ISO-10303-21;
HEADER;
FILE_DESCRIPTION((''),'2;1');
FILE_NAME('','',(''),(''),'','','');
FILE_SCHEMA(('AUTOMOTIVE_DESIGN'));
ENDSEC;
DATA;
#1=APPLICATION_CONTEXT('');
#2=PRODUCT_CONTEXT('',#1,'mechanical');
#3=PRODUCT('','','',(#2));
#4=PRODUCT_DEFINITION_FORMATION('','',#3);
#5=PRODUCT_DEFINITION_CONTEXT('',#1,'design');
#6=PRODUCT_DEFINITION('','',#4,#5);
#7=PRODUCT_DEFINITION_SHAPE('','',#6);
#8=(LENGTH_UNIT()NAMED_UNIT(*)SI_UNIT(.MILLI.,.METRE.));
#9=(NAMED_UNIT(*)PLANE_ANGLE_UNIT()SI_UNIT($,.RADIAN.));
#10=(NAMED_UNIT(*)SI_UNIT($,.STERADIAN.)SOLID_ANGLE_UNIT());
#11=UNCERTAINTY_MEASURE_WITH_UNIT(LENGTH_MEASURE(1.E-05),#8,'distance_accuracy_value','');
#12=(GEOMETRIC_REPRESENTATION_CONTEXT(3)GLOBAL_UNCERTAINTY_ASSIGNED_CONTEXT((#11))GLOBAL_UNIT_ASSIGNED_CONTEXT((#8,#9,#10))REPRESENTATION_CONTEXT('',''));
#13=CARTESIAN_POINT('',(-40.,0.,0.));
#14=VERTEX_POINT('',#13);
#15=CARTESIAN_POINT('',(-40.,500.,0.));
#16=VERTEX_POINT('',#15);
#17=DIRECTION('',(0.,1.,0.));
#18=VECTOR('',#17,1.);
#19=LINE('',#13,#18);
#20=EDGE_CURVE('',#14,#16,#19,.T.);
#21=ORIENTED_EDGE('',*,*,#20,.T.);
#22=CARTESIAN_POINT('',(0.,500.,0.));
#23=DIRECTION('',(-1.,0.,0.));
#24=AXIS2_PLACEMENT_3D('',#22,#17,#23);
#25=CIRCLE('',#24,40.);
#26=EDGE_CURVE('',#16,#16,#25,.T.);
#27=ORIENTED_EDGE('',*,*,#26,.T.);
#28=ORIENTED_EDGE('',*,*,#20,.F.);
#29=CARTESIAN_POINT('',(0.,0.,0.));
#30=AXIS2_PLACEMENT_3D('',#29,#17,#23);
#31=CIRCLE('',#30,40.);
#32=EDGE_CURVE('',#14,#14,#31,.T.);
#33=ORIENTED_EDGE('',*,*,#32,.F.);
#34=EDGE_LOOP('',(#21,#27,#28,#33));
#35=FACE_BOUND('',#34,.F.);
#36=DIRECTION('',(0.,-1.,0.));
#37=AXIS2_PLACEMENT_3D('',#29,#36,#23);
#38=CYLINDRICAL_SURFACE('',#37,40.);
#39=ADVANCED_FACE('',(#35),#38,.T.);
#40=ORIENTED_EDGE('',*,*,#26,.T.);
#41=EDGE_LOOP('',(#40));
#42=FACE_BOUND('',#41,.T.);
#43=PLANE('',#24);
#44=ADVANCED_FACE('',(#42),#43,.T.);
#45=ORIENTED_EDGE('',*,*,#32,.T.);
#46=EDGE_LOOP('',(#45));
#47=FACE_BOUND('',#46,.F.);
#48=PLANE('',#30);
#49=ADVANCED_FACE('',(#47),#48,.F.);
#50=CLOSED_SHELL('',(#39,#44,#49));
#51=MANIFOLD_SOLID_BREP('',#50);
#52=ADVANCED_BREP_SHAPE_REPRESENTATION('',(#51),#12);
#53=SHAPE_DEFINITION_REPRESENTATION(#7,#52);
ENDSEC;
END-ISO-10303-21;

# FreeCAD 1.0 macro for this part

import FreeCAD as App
import Part
import Sketcher
Q = App.Units.Quantity

doc = App.newDocument("Part")
body = doc.addObject("PartDesign::Body", "Body")

sketch1 = doc.addObject("Sketcher::SketchObject", "Sketch")
body.addObject(sketch1)
sketch1.AttachmentSupport = (doc.XZ_Plane, [""])
sketch1.MapMode = "FlatFace"
sketch1.addGeometry(Part.Circle(App.Vector(0, 0, 0), App.Vector(0, 0, 1), 40), False)
sketch1.addConstraint([
    Sketcher.Constraint("Coincident", 0, 3, -1, 1),
    Sketcher.Constraint("Diameter", 0, Q("80 mm")),
])
pad1 = doc.addObject("PartDesign::Pad", "Pad")
body.addObject(pad1)
pad1.Profile = sketch1
pad1.Length = 500
pad1.Reversed = True

doc.recompute()
